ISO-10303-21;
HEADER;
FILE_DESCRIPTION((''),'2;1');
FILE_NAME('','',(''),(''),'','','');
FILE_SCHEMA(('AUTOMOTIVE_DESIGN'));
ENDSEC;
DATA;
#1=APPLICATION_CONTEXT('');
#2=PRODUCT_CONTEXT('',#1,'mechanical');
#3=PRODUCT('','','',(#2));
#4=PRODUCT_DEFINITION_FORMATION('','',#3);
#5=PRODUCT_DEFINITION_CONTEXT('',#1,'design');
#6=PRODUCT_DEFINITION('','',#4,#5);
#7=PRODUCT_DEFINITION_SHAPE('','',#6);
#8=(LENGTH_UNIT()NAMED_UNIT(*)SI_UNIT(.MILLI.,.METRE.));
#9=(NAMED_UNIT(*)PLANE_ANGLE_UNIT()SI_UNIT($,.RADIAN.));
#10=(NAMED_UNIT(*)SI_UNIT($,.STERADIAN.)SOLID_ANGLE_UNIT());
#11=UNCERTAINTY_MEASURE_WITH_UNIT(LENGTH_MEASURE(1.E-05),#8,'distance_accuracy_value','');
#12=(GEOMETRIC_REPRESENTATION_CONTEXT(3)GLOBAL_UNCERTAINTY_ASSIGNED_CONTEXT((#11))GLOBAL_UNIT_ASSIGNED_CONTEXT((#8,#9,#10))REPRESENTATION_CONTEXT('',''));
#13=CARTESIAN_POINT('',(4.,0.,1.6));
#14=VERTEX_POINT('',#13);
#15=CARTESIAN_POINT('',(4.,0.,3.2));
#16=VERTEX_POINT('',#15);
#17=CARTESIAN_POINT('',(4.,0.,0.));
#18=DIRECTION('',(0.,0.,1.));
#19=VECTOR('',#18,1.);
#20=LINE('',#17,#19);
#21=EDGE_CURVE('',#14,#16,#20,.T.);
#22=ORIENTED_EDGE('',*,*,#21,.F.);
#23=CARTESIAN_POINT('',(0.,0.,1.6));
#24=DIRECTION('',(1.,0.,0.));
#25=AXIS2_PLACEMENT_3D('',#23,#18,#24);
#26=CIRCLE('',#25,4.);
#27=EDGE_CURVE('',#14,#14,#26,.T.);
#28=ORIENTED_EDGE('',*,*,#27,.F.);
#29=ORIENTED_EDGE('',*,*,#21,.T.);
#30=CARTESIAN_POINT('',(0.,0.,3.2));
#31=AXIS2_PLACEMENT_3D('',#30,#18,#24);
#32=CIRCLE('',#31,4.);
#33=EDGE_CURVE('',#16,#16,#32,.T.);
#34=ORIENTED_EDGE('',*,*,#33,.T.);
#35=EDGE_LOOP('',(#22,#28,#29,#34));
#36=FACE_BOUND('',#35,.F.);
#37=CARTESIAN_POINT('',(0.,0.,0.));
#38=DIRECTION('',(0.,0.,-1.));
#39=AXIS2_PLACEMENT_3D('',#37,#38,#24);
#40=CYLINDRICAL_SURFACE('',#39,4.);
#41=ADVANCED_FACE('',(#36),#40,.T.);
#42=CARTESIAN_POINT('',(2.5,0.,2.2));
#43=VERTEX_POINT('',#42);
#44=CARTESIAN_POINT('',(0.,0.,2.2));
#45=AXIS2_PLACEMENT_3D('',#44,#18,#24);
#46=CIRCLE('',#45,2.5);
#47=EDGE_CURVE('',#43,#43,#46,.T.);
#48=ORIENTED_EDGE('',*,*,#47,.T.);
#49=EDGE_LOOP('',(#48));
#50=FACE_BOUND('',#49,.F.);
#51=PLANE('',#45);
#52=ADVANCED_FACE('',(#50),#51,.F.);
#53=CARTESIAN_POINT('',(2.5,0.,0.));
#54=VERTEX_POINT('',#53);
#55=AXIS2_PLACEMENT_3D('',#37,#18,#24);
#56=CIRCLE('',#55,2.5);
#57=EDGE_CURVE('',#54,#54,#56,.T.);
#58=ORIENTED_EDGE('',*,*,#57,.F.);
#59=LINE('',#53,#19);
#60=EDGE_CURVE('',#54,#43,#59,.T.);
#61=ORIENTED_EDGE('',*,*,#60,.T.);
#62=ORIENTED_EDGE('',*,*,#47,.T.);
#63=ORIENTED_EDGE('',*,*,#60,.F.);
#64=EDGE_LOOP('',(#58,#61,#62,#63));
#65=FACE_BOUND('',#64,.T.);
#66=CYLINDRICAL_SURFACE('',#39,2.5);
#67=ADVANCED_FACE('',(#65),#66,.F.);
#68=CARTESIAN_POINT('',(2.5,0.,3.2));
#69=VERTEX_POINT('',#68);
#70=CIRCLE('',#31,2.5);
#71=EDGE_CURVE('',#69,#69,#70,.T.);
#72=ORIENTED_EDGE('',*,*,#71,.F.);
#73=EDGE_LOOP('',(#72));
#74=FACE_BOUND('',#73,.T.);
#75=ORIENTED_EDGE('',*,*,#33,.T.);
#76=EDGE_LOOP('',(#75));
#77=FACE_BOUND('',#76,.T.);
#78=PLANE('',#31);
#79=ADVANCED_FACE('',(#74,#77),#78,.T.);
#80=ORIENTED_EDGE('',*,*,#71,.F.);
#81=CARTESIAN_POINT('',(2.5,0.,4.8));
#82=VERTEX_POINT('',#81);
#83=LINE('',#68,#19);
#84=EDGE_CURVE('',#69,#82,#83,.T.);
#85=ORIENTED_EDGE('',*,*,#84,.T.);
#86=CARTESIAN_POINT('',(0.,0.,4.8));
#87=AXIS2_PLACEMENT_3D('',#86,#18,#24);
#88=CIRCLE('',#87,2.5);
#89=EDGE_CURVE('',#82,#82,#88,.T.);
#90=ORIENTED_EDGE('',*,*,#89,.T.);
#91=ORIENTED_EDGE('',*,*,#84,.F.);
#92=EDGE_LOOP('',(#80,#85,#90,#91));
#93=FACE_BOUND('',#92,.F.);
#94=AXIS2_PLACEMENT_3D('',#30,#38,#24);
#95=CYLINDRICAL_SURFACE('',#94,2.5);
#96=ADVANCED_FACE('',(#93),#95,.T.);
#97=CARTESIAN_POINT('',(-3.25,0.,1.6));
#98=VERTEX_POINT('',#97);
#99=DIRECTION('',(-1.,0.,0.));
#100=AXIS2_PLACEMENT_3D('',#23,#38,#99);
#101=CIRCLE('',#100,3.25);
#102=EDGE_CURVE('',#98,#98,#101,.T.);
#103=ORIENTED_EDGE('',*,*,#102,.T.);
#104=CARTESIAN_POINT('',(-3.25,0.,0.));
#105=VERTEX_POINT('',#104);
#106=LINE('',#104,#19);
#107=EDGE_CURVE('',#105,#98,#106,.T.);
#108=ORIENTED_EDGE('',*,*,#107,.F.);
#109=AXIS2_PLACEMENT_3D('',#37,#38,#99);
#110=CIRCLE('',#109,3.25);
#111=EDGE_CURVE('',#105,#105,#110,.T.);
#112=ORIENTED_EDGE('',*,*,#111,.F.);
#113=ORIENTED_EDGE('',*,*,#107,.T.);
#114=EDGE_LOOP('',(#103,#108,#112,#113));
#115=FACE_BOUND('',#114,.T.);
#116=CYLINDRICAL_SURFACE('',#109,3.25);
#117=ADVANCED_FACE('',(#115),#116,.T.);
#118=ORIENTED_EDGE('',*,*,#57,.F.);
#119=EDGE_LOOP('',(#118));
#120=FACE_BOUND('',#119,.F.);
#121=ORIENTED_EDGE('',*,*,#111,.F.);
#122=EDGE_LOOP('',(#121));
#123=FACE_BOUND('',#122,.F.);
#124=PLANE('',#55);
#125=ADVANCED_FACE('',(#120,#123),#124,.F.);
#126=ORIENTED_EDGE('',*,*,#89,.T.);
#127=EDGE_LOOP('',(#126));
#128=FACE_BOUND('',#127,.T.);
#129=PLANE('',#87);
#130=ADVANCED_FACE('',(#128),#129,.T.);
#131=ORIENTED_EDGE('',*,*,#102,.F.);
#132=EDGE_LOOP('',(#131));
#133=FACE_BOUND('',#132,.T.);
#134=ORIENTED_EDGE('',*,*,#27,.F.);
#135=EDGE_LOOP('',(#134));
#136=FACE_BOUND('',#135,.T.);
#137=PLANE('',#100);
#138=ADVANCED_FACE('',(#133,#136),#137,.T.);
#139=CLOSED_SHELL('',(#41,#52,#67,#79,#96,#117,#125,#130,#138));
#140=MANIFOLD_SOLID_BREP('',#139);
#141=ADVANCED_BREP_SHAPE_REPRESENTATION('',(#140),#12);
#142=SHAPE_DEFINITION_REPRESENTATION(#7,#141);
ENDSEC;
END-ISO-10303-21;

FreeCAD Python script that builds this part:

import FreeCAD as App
import Part
import Sketcher

doc = App.newDocument("Part")
params = doc.addObject("Spreadsheet::Sheet", "Params")
for row, (alias, value) in enumerate([
    ("sketch1_diameter", "8 mm"),
    ("sketch1_diameter2", "5 mm"),
    ("pad1_length", "3.2 mm"),
    ("sketch2_diameter", "5 mm"),
    ("pad2_length", "1 mm"),
    ("sketch3_diameter", "5 mm"),
    ("pad3_length", "1.6 mm"),
    ("sketch4_diameter", "6.5 mm"),
    ("sketch4_diameter2", "8 mm"),
    ("pocket1_length", "1.6 mm"),
], start=1):
    params.set(f"A{row}", alias)
    params.set(f"B{row}", "=" + value)
    params.setAlias(f"B{row}", alias)

body = doc.addObject("PartDesign::Body", "Body")

# Sketch on XY plane
sketch1 = body.newObject("Sketcher::SketchObject", "Sketch")
sketch1.AttachmentSupport = (doc.getObject("XY_Plane"), [""])
sketch1.MapMode = "FlatFace"
sketch1.addGeometry(Part.Circle(App.Vector(0, 0, 0), App.Vector(0, 0, 1), 4), False)
sketch1.addGeometry(Part.Circle(App.Vector(0, 0, 0), App.Vector(0, 0, 1), 2.5), False)
sketch1.addConstraint(Sketcher.Constraint("Coincident", 0, 3, -1, 1))
sketch1.addConstraint(Sketcher.Constraint("Coincident", 1, 3, -1, 1))
sketch1.addConstraint(Sketcher.Constraint("Diameter", 0, 8.0))
sketch1.addConstraint(Sketcher.Constraint("Diameter", 1, 5.0))
sketch1.setExpression("Constraints[2]", "Params.sketch1_diameter")
sketch1.setExpression("Constraints[3]", "Params.sketch1_diameter2")
pad1 = body.newObject("PartDesign::Pad", "Pad")
pad1.Profile = sketch1
pad1.setExpression("Length", "Params.pad1_length")

# Sketch on XY plane
sketch2 = body.newObject("Sketcher::SketchObject", "Sketch001")
sketch2.AttachmentSupport = (doc.getObject("XY_Plane"), [""])
sketch2.MapMode = "FlatFace"
sketch2.AttachmentOffset = App.Placement(App.Vector(0, 0, 3.2), App.Rotation())
sketch2.addGeometry(Part.Circle(App.Vector(0, 0, 0), App.Vector(0, 0, 1), 2.5), False)
sketch2.addConstraint(Sketcher.Constraint("Coincident", 0, 3, -1, 1))
sketch2.addConstraint(Sketcher.Constraint("Diameter", 0, 5.0))
sketch2.setExpression("Constraints[1]", "Params.sketch2_diameter")
pad2 = body.newObject("PartDesign::Pad", "Pad001")
pad2.Profile = sketch2
pad2.setExpression("Length", "Params.pad2_length")
pad2.Reversed = True

# Sketch on XY plane
sketch3 = body.newObject("Sketcher::SketchObject", "Sketch002")
sketch3.AttachmentSupport = (doc.getObject("XY_Plane"), [""])
sketch3.MapMode = "FlatFace"
sketch3.AttachmentOffset = App.Placement(App.Vector(0, 0, 3.2), App.Rotation())
sketch3.addGeometry(Part.Circle(App.Vector(0, 0, 0), App.Vector(0, 0, 1), 2.5), False)
sketch3.addConstraint(Sketcher.Constraint("Coincident", 0, 3, -1, 1))
sketch3.addConstraint(Sketcher.Constraint("Diameter", 0, 5.0))
sketch3.setExpression("Constraints[1]", "Params.sketch3_diameter")
pad3 = body.newObject("PartDesign::Pad", "Pad002")
pad3.Profile = sketch3
pad3.setExpression("Length", "Params.pad3_length")

# Sketch on XY plane
sketch4 = body.newObject("Sketcher::SketchObject", "Sketch003")
sketch4.AttachmentSupport = (doc.getObject("XY_Plane"), [""])
sketch4.MapMode = "FlatFace"
sketch4.addGeometry(Part.Circle(App.Vector(0, 0, 0), App.Vector(0, 0, 1), 4), False)
sketch4.addGeometry(Part.Circle(App.Vector(0, 0, 0), App.Vector(0, 0, 1), 3.25), False)
sketch4.addConstraint(Sketcher.Constraint("Coincident", 0, 3, -1, 1))
sketch4.addConstraint(Sketcher.Constraint("Coincident", 1, 3, -1, 1))
sketch4.addConstraint(Sketcher.Constraint("Diameter", 1, 6.5))
sketch4.addConstraint(Sketcher.Constraint("Diameter", 0, 8.0))
sketch4.setExpression("Constraints[2]", "Params.sketch4_diameter")
sketch4.setExpression("Constraints[3]", "Params.sketch4_diameter2")
pocket1 = body.newObject("PartDesign::Pocket", "Pocket")
pocket1.Profile = sketch4
pocket1.setExpression("Length", "Params.pocket1_length")
pocket1.Reversed = True

doc.recompute()
